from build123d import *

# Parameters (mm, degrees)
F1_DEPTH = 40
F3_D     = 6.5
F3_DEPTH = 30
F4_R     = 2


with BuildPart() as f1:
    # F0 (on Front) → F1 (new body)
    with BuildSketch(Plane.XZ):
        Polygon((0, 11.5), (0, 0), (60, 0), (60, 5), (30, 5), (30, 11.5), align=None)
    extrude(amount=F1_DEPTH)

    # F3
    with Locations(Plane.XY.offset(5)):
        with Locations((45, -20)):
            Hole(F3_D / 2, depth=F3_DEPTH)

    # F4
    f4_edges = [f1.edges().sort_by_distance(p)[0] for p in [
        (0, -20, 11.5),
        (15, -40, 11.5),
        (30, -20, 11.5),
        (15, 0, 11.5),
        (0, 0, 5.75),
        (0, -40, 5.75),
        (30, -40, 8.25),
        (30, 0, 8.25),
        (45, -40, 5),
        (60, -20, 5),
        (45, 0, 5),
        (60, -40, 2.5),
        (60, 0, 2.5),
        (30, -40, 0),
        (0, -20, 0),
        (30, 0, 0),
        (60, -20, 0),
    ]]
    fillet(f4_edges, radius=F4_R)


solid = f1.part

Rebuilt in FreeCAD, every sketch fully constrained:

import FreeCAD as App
import Part
import Sketcher
from FreeCAD import Vector
Q = App.Units.Quantity


def edges_at(feature, points):
    """Names of the edges that pass closest to the given points."""
    edges = feature.Shape.Edges
    near = lambda p: min(range(len(edges)), key=lambda i: edges[i].distToShape(Part.Vertex(*p))[0])
    return sorted({f"Edge{near(p) + 1}" for p in points})


def add_polygon(sketch, points):
    """Adds a closed chain of lines whose ends are joined by coincident constraints."""
    first, n = sketch.GeometryCount, len(points)
    for a, b in zip(points, points[1:] + points[:1]):
        sketch.addGeometry(Part.LineSegment(App.Vector(*a, 0), App.Vector(*b, 0)), False)
    for i in range(n):
        sketch.addConstraint(Sketcher.Constraint("Coincident", first + i, 2, first + (i + 1) % n, 1))

doc = App.newDocument("Part")
body = doc.addObject("PartDesign::Body", "Body")

sketch1 = body.newObject("Sketcher::SketchObject", "Sketch")
sketch1.AttachmentSupport = (doc.getObject("XZ_Plane"), [""])
sketch1.MapMode = "FlatFace"
add_polygon(sketch1, [(0, 12), (0, 0), (60, 0), (60, 5), (30, 5), (30, 12)])
sketch1.addConstraint(Sketcher.Constraint("Vertical", 0))
sketch1.addConstraint(Sketcher.Constraint("Horizontal", 1))
sketch1.addConstraint(Sketcher.Constraint("Vertical", 2))
sketch1.addConstraint(Sketcher.Constraint("Horizontal", 3))
sketch1.addConstraint(Sketcher.Constraint("Vertical", 4))
sketch1.addConstraint(Sketcher.Constraint("Horizontal", 5))
sketch1.addConstraint(Sketcher.Constraint("Coincident", 0, 2, -1, 1))
sketch1.addConstraint(Sketcher.Constraint("Equal", 3, 5))
sketch1.addConstraint(Sketcher.Constraint("DistanceX", 1, 1, 1, 2, Q("60 mm")))
sketch1.addConstraint(Sketcher.Constraint("DistanceY", 2, 1, 2, 2, Q("5 mm")))
sketch1.addConstraint(Sketcher.Constraint("DistanceY", 0, 2, 0, 1, Q("11.5 mm")))
pad1 = body.newObject("PartDesign::Pad", "Pad")
pad1.Profile = sketch1
pad1.Length = 40

sketch2 = body.newObject("Sketcher::SketchObject", "Sketch001")
sketch2.AttachmentSupport = (doc.getObject("XY_Plane"), [""])
sketch2.MapMode = "FlatFace"
sketch2.AttachmentOffset = App.Placement(Vector(0, 0, 5), App.Rotation())
sketch2.addGeometry(Part.Circle(Vector(45, -20, 0), Vector(0, 0, 1), 3.2), False)
sketch2.addConstraint(Sketcher.Constraint("Diameter", 0, Q("6.5 mm")))
sketch2.addConstraint(Sketcher.Constraint("DistanceX", -1, 1, 0, 3, Q("45 mm")))
sketch2.addConstraint(Sketcher.Constraint("DistanceY", 0, 3, -1, 1, Q("20 mm")))
doc.recompute()
hole = body.newObject("PartDesign::Hole", "Hole")
hole.Profile = sketch2
hole.ThreadType = "None"
hole.Diameter = 6.5
hole.DepthType = "Dimension"
hole.Depth = 30
hole.DrillPoint = "Flat"
doc.recompute()

fillet = body.newObject("PartDesign::Fillet", "Fillet")
fillet.Base = (hole, edges_at(hole, [
    (0, -20, 11.5),
    (15, -40, 11.5),
    (30, -20, 11.5),
    (15, 0, 11.5),
    (0, 0, 5.75),
    (0, -40, 5.75),
    (30, -40, 8.25),
    (30, 0, 8.25),
    (45, -40, 5),
    (60, -20, 5),
    (45, 0, 5),
    (60, -40, 2.5),
    (60, 0, 2.5),
    (30, -40, 0),
    (0, -20, 0),
    (30, 0, 0),
    (60, -20, 0),
]))
fillet.Radius = 2

doc.recompute()
